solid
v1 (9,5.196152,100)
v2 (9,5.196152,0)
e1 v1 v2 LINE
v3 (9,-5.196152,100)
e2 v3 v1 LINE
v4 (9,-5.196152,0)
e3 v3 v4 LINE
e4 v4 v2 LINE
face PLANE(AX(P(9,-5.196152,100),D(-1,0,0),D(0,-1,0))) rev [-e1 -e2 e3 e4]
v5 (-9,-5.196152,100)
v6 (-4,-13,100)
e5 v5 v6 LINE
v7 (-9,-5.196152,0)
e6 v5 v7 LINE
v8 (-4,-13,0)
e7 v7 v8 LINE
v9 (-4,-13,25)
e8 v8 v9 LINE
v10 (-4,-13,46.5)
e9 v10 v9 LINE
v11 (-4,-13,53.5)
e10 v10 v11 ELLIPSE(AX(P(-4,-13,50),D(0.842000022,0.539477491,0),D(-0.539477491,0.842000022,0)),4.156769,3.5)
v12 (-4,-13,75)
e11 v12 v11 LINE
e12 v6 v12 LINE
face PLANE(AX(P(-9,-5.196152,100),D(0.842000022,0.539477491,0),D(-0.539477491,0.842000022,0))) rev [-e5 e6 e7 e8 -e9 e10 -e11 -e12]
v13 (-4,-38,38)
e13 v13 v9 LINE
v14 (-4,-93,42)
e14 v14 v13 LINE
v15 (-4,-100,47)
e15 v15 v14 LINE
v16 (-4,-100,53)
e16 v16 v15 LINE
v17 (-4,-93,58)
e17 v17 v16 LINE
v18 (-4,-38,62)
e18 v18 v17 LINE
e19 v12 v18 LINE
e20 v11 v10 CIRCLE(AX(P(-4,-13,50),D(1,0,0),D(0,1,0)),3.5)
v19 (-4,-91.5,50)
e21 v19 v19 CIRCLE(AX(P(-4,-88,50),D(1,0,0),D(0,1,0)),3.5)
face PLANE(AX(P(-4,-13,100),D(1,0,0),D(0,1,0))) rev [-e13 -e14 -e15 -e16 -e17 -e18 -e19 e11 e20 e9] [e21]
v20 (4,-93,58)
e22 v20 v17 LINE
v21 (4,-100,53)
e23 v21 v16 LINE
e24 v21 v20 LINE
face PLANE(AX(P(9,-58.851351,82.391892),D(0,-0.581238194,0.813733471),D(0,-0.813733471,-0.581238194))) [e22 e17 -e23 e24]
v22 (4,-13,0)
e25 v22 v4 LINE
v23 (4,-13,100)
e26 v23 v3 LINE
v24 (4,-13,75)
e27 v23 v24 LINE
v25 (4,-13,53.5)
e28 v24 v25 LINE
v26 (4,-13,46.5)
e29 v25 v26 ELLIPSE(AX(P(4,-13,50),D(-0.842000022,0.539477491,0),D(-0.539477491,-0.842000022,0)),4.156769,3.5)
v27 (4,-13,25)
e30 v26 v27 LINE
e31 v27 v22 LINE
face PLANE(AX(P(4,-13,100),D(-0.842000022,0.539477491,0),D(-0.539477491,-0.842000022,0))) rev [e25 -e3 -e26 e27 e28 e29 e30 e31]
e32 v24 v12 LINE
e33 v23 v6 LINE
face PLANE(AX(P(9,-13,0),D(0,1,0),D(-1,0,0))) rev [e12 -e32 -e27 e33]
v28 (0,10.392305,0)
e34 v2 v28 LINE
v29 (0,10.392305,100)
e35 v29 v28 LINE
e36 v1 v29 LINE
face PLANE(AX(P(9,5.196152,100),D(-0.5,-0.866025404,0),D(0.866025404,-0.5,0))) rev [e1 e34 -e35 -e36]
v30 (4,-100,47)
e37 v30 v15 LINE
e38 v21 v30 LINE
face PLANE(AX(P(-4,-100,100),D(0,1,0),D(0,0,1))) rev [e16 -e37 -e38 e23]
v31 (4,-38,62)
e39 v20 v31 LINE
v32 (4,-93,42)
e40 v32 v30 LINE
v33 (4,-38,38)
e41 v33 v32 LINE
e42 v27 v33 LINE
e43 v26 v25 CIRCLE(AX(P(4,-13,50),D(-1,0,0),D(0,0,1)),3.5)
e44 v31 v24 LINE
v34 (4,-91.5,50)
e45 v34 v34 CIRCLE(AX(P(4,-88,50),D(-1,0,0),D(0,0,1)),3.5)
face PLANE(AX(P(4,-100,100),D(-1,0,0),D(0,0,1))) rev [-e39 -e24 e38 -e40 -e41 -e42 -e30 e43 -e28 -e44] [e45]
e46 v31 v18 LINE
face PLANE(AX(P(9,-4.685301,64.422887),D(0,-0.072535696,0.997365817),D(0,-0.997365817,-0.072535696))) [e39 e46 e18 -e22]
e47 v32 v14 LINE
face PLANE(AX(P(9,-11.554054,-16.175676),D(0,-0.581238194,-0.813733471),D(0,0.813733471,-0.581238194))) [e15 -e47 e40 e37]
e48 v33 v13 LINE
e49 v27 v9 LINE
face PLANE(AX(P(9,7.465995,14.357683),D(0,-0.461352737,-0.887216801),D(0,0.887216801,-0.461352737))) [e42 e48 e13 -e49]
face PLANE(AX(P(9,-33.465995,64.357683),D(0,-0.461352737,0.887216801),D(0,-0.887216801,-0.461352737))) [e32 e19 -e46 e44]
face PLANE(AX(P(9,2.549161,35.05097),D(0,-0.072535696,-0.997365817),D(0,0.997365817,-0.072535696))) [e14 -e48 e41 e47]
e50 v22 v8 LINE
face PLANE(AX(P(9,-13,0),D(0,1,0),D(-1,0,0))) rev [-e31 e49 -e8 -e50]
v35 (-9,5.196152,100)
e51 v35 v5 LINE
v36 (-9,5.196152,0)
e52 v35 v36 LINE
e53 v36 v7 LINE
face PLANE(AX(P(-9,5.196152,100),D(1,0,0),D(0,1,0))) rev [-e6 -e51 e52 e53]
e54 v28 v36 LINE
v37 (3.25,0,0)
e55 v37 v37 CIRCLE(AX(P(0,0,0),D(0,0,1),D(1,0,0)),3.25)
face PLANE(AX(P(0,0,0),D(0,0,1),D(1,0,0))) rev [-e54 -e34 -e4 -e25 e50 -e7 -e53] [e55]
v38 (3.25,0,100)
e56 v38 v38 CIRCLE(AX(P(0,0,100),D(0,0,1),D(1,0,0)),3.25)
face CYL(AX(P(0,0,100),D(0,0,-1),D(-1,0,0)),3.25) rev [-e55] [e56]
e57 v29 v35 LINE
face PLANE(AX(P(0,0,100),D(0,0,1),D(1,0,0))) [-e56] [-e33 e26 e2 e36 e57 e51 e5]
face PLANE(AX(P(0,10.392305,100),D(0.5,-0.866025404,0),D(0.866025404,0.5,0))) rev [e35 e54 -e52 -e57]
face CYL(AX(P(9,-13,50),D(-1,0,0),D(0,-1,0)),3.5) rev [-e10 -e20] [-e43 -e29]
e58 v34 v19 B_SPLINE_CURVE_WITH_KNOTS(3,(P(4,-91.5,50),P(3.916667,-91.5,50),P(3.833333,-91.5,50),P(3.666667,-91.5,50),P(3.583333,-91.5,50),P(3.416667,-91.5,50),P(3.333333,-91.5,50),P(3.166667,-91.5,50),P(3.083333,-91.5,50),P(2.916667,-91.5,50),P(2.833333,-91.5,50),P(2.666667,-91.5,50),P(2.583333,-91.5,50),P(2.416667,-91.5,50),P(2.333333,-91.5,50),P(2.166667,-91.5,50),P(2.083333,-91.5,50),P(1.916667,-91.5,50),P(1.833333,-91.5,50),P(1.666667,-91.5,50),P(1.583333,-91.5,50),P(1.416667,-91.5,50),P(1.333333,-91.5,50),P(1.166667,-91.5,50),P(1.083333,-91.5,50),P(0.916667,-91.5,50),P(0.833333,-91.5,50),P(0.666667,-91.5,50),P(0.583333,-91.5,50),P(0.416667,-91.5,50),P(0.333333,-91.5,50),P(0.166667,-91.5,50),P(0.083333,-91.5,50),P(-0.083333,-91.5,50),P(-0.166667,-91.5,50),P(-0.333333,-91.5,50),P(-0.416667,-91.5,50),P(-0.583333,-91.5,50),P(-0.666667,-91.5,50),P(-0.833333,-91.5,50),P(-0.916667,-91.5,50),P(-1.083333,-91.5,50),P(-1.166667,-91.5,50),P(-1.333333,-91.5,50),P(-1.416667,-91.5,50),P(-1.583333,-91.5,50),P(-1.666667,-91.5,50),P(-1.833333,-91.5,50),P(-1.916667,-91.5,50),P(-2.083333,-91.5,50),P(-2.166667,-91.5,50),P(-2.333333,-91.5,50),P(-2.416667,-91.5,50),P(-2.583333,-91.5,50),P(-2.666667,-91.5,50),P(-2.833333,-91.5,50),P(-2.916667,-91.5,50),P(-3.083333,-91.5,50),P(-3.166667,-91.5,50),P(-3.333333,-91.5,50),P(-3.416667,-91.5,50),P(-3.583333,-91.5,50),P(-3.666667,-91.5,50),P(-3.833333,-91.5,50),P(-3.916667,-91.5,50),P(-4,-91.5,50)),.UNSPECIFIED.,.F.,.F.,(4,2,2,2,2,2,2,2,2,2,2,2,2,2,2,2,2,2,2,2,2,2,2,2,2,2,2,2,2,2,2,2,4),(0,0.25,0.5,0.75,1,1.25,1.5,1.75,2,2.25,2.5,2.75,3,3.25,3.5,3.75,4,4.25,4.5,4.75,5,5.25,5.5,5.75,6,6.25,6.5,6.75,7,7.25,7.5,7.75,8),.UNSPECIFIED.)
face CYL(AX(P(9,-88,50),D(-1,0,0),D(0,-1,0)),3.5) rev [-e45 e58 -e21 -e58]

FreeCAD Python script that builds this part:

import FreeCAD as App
import Part
import Sketcher
Q = App.Units.Quantity


def add_polygon(sketch, points):
    """Adds a closed chain of lines whose ends are joined by coincident constraints."""
    first, n = sketch.GeometryCount, len(points)
    for a, b in zip(points, points[1:] + points[:1]):
        sketch.addGeometry(Part.LineSegment(App.Vector(*a, 0), App.Vector(*b, 0)), False)
    for i in range(n):
        sketch.addConstraint(Sketcher.Constraint("Coincident", first + i, 2, first + (i + 1) % n, 1))

doc = App.newDocument("Part")
body = doc.addObject("PartDesign::Body", "Body")

sketch1 = body.newObject("Sketcher::SketchObject", "Sketch")
sketch1.AttachmentSupport = (doc.getObject("XY_Plane"), [""])
sketch1.MapMode = "FlatFace"
add_polygon(sketch1, [(-9, 5.2), (-9, -5.2), (-4, -13), (-4, -100), (4, -100), (4, -13), (9, -5.2), (9, 5.2), (0, 10.4)])
sketch1.addGeometry(Part.Circle(App.Vector(0, 0, 0), App.Vector(0, 0, 1), 3.2), False)
sketch1.addConstraint([
    Sketcher.Constraint("Vertical", 0),
    Sketcher.Constraint("Vertical", 2),
    Sketcher.Constraint("Horizontal", 3),
    Sketcher.Constraint("Vertical", 4),
    Sketcher.Constraint("Vertical", 6),
    Sketcher.Constraint("Coincident", 9, 3, -1, 1),
    Sketcher.Constraint("Symmetric", 0, 2, 6, 2, -1, 1),
    Sketcher.Constraint("Symmetric", 1, 2, 4, 2, -2),
    Sketcher.Constraint("PointOnObject", 7, 2, -2),
    Sketcher.Constraint("Horizontal", 0, 2, 5, 2),
    Sketcher.Constraint("Horizontal", 6, 2, 8, 2),
    Sketcher.Constraint("Diameter", 9, 6.5),
    Sketcher.Constraint("DistanceX", 3, 1, 3, 2, 8.0),
    Sketcher.Constraint("DistanceY", 2, 2, 2, 1, 87.0),
    Sketcher.Constraint("Angle", 7, Q("150 deg")),
    Sketcher.Constraint("DistanceX", 0, 2, -1, 1, 9.0),
    Sketcher.Constraint("DistanceY", 1, 2, -1, 1, 13.0),
    Sketcher.Constraint("DistanceY", 0, 2, 0, 1, 10.392305),
])
pad1 = body.newObject("PartDesign::Pad", "Pad")
pad1.Profile = sketch1
pad1.Length = 100

sketch2 = body.newObject("Sketcher::SketchObject", "Sketch001")
sketch2.AttachmentSupport = (doc.getObject("YZ_Plane"), [""])
sketch2.MapMode = "FlatFace"
sketch2.AttachmentOffset = App.Placement(App.Vector(0, 0, -4), App.Rotation())
add_polygon(sketch2, [(-13, 25), (-13, 0), (-100, 0), (-107.5, 14.1), (-107.5, 75.2), (-100, 100), (-13, 100), (-13, 75), (-38, 62), (-93, 58), (-100, 53), (-100, 47), (-93, 42), (-38, 38)])
sketch2.addGeometry(Part.Circle(App.Vector(-13, 50, 0), App.Vector(0, 0, 1), 3.5), False)
sketch2.addGeometry(Part.Circle(App.Vector(-88, 50, 0), App.Vector(0, 0, 1), 3.5), False)
sketch2.addConstraint([
    Sketcher.Constraint("Vertical", 0),
    Sketcher.Constraint("Horizontal", 1),
    Sketcher.Constraint("Vertical", 3),
    Sketcher.Constraint("Horizontal", 5),
    Sketcher.Constraint("Vertical", 6),
    Sketcher.Constraint("Vertical", 10),
    Sketcher.Constraint("Equal", 14, 15),
    Sketcher.Constraint("PointOnObject", 0, 2, -1),
    Sketcher.Constraint("Horizontal", 14, 3, 15, 3),
    Sketcher.Constraint("Vertical", 14, 3, 0, 2),
    Sketcher.Constraint("Vertical", 1, 2, 4, 2),
    Sketcher.Constraint("Vertical", 0, 2, 5, 2),
    Sketcher.Constraint("Vertical", 4, 2, 9, 2),
    Sketcher.Constraint("Vertical", 8, 2, 11, 2),
    Sketcher.Constraint("Vertical", 7, 2, 12, 2),
    Sketcher.Constraint("Equal", 0, 6),
    Sketcher.Constraint("Equal", 9, 11),
    Sketcher.Constraint("Equal", 8, 12),
    Sketcher.Constraint("Equal", 7, 13),
    Sketcher.Constraint("Diameter", 14, 7.0),
    Sketcher.Constraint("DistanceX", 1, 2, 1, 1, 87.0),
    Sketcher.Constraint("DistanceY", 0, 2, 0, 1, 25.0),
    Sketcher.Constraint("DistanceY", 10, 2, 10, 1, 6.0),
    Sketcher.Constraint("DistanceX", 14, 3, -1, 1, 13.0),
    Sketcher.Constraint("DistanceY", -1, 1, 14, 3, 50.0),
    Sketcher.Constraint("DistanceX", 15, 3, -1, 1, 88.0),
    Sketcher.Constraint("DistanceY", -1, 1, 4, 2, 100.0),
    Sketcher.Constraint("DistanceX", 7, 2, -1, 1, 38.0),
    Sketcher.Constraint("DistanceY", -1, 1, 7, 2, 62.0),
    Sketcher.Constraint("DistanceX", 8, 2, -1, 1, 93.0),
    Sketcher.Constraint("DistanceY", -1, 1, 8, 2, 58.0),
    Sketcher.Constraint("DistanceY", 3, 1, 3, 2, 61.136991),
    Sketcher.Constraint("Distance", 4, 25.864218),
    Sketcher.Constraint("DistanceY", -1, 1, 3, 2, 75.233428),
])
pocket1 = body.newObject("PartDesign::Pocket", "Pocket")
pocket1.Profile = sketch2
pocket1.Type = "ThroughAll"
pocket1.Midplane = True

doc.recompute()
